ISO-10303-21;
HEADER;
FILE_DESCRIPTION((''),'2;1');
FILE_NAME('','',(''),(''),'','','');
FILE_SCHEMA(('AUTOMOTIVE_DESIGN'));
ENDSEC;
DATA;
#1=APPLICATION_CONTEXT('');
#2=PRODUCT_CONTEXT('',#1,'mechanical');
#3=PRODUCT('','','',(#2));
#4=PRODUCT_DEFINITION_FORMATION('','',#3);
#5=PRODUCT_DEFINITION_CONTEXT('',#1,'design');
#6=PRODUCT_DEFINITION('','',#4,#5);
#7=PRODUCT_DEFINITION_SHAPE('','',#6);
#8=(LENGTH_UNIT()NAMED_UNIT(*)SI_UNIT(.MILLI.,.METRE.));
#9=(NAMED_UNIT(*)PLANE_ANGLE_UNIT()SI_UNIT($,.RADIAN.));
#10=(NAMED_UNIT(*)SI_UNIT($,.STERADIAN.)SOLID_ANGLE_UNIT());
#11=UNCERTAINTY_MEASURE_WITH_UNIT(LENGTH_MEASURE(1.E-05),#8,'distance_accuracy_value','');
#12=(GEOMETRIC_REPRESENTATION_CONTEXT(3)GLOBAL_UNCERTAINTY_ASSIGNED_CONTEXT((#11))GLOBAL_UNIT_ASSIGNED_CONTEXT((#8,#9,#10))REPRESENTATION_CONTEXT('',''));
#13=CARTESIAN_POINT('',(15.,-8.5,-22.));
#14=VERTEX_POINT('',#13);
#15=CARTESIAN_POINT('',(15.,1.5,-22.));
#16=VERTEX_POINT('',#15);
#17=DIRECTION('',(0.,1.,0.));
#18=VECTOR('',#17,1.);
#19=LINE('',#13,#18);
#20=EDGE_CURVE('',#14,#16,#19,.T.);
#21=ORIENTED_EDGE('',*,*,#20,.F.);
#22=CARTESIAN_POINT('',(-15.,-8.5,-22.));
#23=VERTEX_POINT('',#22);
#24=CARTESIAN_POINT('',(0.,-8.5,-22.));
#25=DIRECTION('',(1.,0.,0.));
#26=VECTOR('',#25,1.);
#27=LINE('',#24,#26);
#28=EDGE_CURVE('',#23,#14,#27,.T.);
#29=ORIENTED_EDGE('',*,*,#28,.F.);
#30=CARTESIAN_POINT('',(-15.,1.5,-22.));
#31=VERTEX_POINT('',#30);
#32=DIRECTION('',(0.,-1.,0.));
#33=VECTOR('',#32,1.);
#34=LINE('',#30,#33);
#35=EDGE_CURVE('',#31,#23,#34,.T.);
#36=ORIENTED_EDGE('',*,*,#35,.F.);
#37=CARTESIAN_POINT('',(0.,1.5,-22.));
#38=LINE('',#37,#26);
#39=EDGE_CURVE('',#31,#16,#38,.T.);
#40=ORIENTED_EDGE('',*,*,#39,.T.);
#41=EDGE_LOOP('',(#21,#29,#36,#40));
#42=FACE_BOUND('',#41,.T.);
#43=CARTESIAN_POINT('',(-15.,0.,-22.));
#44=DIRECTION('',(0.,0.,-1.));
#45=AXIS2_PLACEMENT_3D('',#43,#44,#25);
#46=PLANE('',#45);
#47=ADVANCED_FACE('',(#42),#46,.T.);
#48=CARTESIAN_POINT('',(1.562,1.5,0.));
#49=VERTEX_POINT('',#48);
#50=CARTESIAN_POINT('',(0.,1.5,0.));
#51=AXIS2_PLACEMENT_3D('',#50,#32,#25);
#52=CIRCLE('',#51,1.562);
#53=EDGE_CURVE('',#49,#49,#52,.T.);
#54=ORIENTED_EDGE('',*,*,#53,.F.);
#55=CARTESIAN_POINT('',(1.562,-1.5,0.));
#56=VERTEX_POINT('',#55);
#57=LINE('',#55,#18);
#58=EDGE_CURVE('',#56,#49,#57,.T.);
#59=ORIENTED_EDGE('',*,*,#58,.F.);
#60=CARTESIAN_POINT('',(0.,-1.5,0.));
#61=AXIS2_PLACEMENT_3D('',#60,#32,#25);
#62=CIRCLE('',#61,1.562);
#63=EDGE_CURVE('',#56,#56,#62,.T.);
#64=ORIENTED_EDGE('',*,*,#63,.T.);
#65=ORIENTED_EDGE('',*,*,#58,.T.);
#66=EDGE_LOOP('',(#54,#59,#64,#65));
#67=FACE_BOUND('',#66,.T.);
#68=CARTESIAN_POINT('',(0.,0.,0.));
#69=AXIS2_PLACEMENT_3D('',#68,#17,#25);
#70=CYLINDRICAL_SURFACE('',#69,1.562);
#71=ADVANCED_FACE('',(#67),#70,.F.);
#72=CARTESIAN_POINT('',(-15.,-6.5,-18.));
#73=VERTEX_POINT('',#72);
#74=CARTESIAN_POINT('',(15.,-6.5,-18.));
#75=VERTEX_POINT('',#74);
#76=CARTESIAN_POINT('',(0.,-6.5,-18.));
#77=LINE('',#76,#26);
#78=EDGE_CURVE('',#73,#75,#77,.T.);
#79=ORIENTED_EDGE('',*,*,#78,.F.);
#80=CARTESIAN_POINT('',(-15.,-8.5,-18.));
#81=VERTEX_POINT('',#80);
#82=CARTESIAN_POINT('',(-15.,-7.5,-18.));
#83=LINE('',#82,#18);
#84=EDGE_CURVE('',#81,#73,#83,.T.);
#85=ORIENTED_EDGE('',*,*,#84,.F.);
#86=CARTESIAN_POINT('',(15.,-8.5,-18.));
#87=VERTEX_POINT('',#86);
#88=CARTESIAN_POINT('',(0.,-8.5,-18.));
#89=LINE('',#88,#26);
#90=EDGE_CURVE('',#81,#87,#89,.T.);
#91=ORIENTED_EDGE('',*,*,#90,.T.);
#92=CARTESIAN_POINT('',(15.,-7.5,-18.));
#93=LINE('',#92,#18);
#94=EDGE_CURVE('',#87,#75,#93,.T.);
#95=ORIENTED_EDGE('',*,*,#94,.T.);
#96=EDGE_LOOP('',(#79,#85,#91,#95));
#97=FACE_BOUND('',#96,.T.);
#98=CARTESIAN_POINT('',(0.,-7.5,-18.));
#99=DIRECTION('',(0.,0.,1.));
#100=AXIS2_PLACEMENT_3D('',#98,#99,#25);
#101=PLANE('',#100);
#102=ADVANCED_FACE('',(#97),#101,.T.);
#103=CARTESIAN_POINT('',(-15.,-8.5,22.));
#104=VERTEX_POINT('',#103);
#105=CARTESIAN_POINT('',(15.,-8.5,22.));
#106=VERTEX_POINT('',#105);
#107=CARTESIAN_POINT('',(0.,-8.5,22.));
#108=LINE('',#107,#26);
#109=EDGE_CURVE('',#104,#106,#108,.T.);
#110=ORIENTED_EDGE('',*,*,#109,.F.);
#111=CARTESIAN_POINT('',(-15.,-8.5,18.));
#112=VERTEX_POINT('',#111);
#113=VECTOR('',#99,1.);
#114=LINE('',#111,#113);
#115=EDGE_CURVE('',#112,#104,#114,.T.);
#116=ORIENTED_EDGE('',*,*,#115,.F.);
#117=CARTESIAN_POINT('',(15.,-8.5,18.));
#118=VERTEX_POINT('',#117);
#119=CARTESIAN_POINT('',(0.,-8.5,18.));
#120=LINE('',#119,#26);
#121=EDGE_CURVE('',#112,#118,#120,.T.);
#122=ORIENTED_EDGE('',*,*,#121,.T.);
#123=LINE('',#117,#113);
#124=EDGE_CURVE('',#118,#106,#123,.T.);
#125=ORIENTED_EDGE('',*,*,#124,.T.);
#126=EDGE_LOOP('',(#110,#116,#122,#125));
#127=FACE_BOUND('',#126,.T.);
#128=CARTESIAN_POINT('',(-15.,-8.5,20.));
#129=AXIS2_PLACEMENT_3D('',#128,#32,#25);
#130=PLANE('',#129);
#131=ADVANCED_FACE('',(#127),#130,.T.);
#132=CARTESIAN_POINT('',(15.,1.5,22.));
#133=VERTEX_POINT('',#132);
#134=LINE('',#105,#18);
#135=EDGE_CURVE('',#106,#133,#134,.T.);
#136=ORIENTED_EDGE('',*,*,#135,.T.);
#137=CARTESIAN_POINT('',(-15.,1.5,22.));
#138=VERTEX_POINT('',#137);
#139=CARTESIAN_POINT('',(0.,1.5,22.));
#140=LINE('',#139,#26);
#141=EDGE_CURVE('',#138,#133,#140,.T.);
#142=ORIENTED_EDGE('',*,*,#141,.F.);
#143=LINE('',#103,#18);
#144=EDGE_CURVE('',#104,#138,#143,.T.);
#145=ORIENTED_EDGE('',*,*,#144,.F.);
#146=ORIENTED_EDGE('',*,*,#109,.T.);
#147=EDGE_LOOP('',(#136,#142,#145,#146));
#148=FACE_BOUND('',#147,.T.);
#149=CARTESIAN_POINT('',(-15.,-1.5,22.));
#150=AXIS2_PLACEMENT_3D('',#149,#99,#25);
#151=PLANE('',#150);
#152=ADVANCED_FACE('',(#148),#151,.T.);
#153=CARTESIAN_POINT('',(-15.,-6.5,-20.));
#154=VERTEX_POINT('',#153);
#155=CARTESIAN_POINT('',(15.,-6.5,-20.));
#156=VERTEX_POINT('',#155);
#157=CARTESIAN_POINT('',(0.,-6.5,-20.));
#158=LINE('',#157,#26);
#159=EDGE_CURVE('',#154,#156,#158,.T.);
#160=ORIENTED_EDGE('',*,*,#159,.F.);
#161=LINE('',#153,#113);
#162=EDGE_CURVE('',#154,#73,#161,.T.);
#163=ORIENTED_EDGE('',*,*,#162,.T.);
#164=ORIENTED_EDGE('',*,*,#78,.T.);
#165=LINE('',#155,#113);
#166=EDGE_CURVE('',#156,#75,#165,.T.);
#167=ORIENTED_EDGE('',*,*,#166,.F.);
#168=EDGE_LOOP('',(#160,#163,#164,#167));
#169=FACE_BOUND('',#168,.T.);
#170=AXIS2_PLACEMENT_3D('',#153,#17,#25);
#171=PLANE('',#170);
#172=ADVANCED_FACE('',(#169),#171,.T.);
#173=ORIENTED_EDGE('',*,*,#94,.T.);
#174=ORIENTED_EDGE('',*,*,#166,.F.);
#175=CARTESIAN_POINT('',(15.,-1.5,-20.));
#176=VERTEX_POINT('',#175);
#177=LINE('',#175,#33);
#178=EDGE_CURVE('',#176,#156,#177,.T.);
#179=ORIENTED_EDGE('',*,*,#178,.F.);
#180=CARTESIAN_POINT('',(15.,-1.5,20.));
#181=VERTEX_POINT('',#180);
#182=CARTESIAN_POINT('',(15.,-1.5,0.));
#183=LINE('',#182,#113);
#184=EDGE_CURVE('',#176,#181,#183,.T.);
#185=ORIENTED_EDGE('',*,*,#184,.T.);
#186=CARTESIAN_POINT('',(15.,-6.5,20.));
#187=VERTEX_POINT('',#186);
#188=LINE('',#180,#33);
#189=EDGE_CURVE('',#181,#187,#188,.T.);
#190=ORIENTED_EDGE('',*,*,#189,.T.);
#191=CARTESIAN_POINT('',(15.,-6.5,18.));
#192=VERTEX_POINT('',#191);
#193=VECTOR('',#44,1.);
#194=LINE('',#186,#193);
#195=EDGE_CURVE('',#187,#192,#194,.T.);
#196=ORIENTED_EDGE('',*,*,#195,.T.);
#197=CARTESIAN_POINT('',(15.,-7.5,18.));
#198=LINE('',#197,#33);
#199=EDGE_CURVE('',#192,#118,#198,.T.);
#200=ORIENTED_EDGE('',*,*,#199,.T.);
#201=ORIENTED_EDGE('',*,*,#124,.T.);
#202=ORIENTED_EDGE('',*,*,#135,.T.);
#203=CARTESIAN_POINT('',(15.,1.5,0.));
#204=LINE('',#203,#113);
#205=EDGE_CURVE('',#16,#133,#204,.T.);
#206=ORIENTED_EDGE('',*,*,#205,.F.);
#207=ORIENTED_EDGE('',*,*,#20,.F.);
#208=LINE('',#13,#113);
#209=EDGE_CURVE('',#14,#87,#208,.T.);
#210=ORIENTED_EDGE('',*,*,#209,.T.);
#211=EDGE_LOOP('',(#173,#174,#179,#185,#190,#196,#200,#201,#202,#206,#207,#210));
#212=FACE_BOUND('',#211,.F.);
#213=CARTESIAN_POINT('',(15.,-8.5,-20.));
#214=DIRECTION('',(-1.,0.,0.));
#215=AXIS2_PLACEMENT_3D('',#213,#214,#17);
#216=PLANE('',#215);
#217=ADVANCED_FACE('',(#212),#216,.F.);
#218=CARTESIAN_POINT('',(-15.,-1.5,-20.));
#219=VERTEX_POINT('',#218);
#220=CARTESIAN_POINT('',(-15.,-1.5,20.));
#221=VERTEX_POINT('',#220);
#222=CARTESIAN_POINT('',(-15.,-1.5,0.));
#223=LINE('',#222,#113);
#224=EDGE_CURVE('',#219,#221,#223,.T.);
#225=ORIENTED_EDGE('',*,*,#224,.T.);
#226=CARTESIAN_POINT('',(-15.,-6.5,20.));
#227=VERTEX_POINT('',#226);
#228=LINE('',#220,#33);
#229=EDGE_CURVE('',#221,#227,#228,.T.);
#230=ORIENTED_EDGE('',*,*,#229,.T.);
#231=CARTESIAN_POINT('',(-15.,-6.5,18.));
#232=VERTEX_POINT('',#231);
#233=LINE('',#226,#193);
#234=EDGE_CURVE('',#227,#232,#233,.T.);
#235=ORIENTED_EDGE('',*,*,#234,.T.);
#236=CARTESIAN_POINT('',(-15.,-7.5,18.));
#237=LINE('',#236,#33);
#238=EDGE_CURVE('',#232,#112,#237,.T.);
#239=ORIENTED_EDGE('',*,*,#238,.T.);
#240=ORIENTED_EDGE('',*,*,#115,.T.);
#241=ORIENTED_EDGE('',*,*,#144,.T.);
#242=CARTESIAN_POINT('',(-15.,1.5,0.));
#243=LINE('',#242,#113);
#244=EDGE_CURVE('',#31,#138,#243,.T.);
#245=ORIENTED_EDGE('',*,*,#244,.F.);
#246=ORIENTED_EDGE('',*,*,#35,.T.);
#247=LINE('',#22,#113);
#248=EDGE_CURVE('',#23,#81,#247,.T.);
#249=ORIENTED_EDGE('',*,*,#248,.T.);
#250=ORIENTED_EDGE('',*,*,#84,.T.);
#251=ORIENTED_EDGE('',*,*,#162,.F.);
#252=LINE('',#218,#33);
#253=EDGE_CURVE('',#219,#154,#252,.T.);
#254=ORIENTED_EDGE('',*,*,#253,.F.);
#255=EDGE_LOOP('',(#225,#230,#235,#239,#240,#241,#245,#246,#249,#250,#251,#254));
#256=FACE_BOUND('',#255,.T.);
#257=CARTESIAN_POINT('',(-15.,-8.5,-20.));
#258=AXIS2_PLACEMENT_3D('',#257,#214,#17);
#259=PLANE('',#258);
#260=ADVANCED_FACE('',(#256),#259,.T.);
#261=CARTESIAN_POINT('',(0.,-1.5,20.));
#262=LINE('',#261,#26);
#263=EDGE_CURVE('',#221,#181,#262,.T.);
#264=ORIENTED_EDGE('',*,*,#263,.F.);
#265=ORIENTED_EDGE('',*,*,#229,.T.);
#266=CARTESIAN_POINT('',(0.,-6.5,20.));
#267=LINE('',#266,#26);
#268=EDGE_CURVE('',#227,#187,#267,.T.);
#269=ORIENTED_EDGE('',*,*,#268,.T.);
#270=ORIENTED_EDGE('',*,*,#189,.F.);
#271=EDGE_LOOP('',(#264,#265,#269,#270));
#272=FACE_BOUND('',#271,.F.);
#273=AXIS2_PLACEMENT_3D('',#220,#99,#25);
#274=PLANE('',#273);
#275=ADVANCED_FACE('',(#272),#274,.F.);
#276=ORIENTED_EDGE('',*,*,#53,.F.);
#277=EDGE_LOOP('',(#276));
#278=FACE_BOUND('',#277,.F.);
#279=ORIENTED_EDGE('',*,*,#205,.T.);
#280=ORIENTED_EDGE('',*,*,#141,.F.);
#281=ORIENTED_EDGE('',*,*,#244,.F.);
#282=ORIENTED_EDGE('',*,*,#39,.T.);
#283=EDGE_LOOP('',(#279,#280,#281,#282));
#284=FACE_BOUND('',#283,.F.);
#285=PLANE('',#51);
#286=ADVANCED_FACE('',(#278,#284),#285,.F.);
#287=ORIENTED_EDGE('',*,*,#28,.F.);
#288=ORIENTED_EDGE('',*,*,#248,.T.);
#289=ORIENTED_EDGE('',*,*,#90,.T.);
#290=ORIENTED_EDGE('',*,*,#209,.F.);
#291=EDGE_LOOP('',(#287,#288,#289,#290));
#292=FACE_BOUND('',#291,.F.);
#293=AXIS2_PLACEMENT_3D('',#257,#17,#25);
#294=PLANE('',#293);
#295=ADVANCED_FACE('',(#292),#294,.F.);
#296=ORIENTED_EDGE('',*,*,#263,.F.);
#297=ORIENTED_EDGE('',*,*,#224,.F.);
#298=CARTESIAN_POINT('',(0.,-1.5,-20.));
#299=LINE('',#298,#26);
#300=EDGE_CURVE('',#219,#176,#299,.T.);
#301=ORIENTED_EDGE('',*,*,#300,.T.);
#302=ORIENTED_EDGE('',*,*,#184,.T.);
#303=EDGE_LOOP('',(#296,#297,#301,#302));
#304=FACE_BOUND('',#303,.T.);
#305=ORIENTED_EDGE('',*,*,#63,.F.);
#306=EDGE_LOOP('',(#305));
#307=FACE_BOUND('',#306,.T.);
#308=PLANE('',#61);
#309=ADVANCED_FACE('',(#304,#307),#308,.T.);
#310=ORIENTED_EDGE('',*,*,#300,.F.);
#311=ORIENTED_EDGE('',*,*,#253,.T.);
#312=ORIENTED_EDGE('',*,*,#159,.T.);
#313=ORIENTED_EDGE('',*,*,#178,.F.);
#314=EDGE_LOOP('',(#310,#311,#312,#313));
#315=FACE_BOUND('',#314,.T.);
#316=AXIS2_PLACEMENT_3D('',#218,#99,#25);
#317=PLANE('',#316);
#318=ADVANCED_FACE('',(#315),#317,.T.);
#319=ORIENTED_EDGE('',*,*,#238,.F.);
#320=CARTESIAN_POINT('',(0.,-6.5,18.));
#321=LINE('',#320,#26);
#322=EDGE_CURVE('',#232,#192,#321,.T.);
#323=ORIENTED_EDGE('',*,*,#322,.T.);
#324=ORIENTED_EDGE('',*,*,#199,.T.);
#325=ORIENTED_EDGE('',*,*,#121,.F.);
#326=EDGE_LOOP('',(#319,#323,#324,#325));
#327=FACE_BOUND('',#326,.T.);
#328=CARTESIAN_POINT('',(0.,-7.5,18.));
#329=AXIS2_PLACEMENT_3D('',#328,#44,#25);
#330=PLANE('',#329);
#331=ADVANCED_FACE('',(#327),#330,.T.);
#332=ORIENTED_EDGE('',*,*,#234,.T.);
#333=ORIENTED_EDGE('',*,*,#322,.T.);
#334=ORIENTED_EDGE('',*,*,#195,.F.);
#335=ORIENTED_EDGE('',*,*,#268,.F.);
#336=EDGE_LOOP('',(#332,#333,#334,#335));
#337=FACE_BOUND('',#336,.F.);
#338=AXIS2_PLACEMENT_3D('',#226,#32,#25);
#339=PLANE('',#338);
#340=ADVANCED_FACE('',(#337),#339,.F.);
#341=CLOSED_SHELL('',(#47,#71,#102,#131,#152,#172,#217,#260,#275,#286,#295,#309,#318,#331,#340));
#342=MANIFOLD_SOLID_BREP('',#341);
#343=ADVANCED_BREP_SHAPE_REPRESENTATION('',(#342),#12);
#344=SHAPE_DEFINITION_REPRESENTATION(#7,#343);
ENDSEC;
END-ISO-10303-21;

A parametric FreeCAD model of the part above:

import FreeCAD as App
import Part
import Sketcher
from FreeCAD import Vector
Q = App.Units.Quantity

doc = App.newDocument("Part")
body = doc.addObject("PartDesign::Body", "Body")

# Sketch on XZ plane
sketch1 = doc.addObject("Sketcher::SketchObject", "Sketch")
body.addObject(sketch1)
sketch1.AttachmentSupport = (doc.XZ_Plane, [""])
sketch1.MapMode = "FlatFace"
sketch1.addGeometry([
    Part.LineSegment(Vector(-15, 22, 0), Vector(-15, -22, 0)),  # 0
    Part.LineSegment(Vector(-15, -22, 0), Vector(15, -22, 0)),  # 1
    Part.LineSegment(Vector(15, -22, 0), Vector(15, 22, 0)),  # 2
    Part.LineSegment(Vector(15, 22, 0), Vector(-15, 22, 0)),  # 3
    Part.Circle(Vector(0, 0, 0), Vector(0, 0, 1), 1.6),  # 4
], False)
sketch1.addConstraint([
    Sketcher.Constraint("Coincident", 0, 2, 1, 1),
    Sketcher.Constraint("Coincident", 1, 2, 2, 1),
    Sketcher.Constraint("Coincident", 2, 2, 3, 1),
    Sketcher.Constraint("Coincident", 3, 2, 0, 1),
    Sketcher.Constraint("Vertical", 0),
    Sketcher.Constraint("Horizontal", 1),
    Sketcher.Constraint("Vertical", 2),
    Sketcher.Constraint("Horizontal", 3),
    Sketcher.Constraint("Coincident", 4, 3, -1, 1),
    Sketcher.Constraint("Symmetric", 0, 2, 2, 2, -1, 1),
    Sketcher.Constraint("DistanceX", 1, 1, 1, 2, Q("30 mm")),
    Sketcher.Constraint("DistanceY", 0, 2, 0, 1, Q("44 mm")),
    Sketcher.Constraint("Diameter", 4, Q("3.124 mm")),
])
pad1 = doc.addObject("PartDesign::Pad", "Pad")
body.addObject(pad1)
pad1.Profile = sketch1
pad1.Length = 3
pad1.Midplane = True

# Sketch on XZ plane
sketch2 = doc.addObject("Sketcher::SketchObject", "Sketch001")
body.addObject(sketch2)
sketch2.AttachmentSupport = (doc.XZ_Plane, [""])
sketch2.MapMode = "FlatFace"
sketch2.AttachmentOffset = App.Placement(Vector(0, 0, 1.5), App.Rotation())
sketch2.addGeometry([
    Part.LineSegment(Vector(-15, 22, 0), Vector(-15, 20, 0)),  # 0
    Part.LineSegment(Vector(-15, 20, 0), Vector(15, 20, 0)),  # 1
    Part.LineSegment(Vector(15, 20, 0), Vector(15, 22, 0)),  # 2
    Part.LineSegment(Vector(15, 22, 0), Vector(-15, 22, 0)),  # 3
    Part.LineSegment(Vector(-15, -20, 0), Vector(-15, -22, 0)),  # 4
    Part.LineSegment(Vector(-15, -22, 0), Vector(15, -22, 0)),  # 5
    Part.LineSegment(Vector(15, -22, 0), Vector(15, -20, 0)),  # 6
    Part.LineSegment(Vector(15, -20, 0), Vector(-15, -20, 0)),  # 7
], False)
sketch2.addConstraint([
    Sketcher.Constraint("Coincident", 0, 2, 1, 1),
    Sketcher.Constraint("Coincident", 1, 2, 2, 1),
    Sketcher.Constraint("Coincident", 2, 2, 3, 1),
    Sketcher.Constraint("Coincident", 3, 2, 0, 1),
    Sketcher.Constraint("Coincident", 4, 2, 5, 1),
    Sketcher.Constraint("Coincident", 5, 2, 6, 1),
    Sketcher.Constraint("Coincident", 6, 2, 7, 1),
    Sketcher.Constraint("Coincident", 7, 2, 4, 1),
    Sketcher.Constraint("Vertical", 0),
    Sketcher.Constraint("Horizontal", 1),
    Sketcher.Constraint("Vertical", 2),
    Sketcher.Constraint("Horizontal", 3),
    Sketcher.Constraint("Vertical", 4),
    Sketcher.Constraint("Horizontal", 5),
    Sketcher.Constraint("Vertical", 6),
    Sketcher.Constraint("Horizontal", 7),
    Sketcher.Constraint("Symmetric", 2, 2, 4, 2, -1, 1),
    Sketcher.Constraint("Symmetric", 0, 2, 6, 2, -1, 1),
    Sketcher.Constraint("Vertical", 3, 2, 4, 2),
    Sketcher.Constraint("DistanceX", 1, 1, 1, 2, Q("30 mm")),
    Sketcher.Constraint("DistanceY", 0, 2, 0, 1, Q("2 mm")),
    Sketcher.Constraint("DistanceY", -1, 1, 0, 2, Q("20 mm")),
])
pad2 = doc.addObject("PartDesign::Pad", "Pad001")
body.addObject(pad2)
pad2.Profile = sketch2
pad2.Length = 7

# Sketch on XY plane
sketch3 = doc.addObject("Sketcher::SketchObject", "Sketch002")
body.addObject(sketch3)
sketch3.AttachmentSupport = (doc.XY_Plane, [""])
sketch3.MapMode = "FlatFace"
sketch3.AttachmentOffset = App.Placement(Vector(0, 0, 20), App.Rotation())
sketch3.addGeometry([
    Part.LineSegment(Vector(-15, -8.5, 0), Vector(-15, -6.5, 0)),
    Part.LineSegment(Vector(-15, -6.5, 0), Vector(15, -6.5, 0)),
    Part.LineSegment(Vector(15, -6.5, 0), Vector(15, -8.5, 0)),
    Part.LineSegment(Vector(15, -8.5, 0), Vector(-15, -8.5, 0)),
], False)
sketch3.addConstraint([
    Sketcher.Constraint("Coincident", 0, 2, 1, 1),
    Sketcher.Constraint("Coincident", 1, 2, 2, 1),
    Sketcher.Constraint("Coincident", 2, 2, 3, 1),
    Sketcher.Constraint("Coincident", 3, 2, 0, 1),
    Sketcher.Constraint("Vertical", 0),
    Sketcher.Constraint("Horizontal", 1),
    Sketcher.Constraint("Vertical", 2),
    Sketcher.Constraint("Horizontal", 3),
    Sketcher.Constraint("DistanceX", 1, 1, 1, 2, Q("30 mm")),
    Sketcher.Constraint("DistanceY", 0, 1, 0, 2, Q("2 mm")),
    Sketcher.Constraint("DistanceX", 0, 2, -1, 1, Q("15 mm")),
    Sketcher.Constraint("DistanceY", 0, 2, -1, 1, Q("6.5 mm")),
])
pad3 = doc.addObject("PartDesign::Pad", "Pad002")
body.addObject(pad3)
pad3.Profile = sketch3
pad3.Length = 2
pad3.Reversed = True

# Sketch on XY plane
sketch4 = doc.addObject("Sketcher::SketchObject", "Sketch003")
body.addObject(sketch4)
sketch4.AttachmentSupport = (doc.XY_Plane, [""])
sketch4.MapMode = "FlatFace"
sketch4.AttachmentOffset = App.Placement(Vector(0, 0, -20), App.Rotation())
sketch4.addGeometry([
    Part.LineSegment(Vector(-15, -6.5, 0), Vector(-15, -8.5, 0)),
    Part.LineSegment(Vector(-15, -8.5, 0), Vector(15, -8.5, 0)),
    Part.LineSegment(Vector(15, -8.5, 0), Vector(15, -6.5, 0)),
    Part.LineSegment(Vector(15, -6.5, 0), Vector(-15, -6.5, 0)),
], False)
sketch4.addConstraint([
    Sketcher.Constraint("Coincident", 0, 2, 1, 1),
    Sketcher.Constraint("Coincident", 1, 2, 2, 1),
    Sketcher.Constraint("Coincident", 2, 2, 3, 1),
    Sketcher.Constraint("Coincident", 3, 2, 0, 1),
    Sketcher.Constraint("Vertical", 0),
    Sketcher.Constraint("Horizontal", 1),
    Sketcher.Constraint("Vertical", 2),
    Sketcher.Constraint("Horizontal", 3),
    Sketcher.Constraint("DistanceX", 1, 1, 1, 2, Q("30 mm")),
    Sketcher.Constraint("DistanceY", 0, 2, 0, 1, Q("2 mm")),
    Sketcher.Constraint("DistanceX", 0, 2, -1, 1, Q("15 mm")),
    Sketcher.Constraint("DistanceY", 0, 2, -1, 1, Q("8.5 mm")),
])
pad4 = doc.addObject("PartDesign::Pad", "Pad003")
body.addObject(pad4)
pad4.Profile = sketch4
pad4.Length = 2

doc.recompute()
